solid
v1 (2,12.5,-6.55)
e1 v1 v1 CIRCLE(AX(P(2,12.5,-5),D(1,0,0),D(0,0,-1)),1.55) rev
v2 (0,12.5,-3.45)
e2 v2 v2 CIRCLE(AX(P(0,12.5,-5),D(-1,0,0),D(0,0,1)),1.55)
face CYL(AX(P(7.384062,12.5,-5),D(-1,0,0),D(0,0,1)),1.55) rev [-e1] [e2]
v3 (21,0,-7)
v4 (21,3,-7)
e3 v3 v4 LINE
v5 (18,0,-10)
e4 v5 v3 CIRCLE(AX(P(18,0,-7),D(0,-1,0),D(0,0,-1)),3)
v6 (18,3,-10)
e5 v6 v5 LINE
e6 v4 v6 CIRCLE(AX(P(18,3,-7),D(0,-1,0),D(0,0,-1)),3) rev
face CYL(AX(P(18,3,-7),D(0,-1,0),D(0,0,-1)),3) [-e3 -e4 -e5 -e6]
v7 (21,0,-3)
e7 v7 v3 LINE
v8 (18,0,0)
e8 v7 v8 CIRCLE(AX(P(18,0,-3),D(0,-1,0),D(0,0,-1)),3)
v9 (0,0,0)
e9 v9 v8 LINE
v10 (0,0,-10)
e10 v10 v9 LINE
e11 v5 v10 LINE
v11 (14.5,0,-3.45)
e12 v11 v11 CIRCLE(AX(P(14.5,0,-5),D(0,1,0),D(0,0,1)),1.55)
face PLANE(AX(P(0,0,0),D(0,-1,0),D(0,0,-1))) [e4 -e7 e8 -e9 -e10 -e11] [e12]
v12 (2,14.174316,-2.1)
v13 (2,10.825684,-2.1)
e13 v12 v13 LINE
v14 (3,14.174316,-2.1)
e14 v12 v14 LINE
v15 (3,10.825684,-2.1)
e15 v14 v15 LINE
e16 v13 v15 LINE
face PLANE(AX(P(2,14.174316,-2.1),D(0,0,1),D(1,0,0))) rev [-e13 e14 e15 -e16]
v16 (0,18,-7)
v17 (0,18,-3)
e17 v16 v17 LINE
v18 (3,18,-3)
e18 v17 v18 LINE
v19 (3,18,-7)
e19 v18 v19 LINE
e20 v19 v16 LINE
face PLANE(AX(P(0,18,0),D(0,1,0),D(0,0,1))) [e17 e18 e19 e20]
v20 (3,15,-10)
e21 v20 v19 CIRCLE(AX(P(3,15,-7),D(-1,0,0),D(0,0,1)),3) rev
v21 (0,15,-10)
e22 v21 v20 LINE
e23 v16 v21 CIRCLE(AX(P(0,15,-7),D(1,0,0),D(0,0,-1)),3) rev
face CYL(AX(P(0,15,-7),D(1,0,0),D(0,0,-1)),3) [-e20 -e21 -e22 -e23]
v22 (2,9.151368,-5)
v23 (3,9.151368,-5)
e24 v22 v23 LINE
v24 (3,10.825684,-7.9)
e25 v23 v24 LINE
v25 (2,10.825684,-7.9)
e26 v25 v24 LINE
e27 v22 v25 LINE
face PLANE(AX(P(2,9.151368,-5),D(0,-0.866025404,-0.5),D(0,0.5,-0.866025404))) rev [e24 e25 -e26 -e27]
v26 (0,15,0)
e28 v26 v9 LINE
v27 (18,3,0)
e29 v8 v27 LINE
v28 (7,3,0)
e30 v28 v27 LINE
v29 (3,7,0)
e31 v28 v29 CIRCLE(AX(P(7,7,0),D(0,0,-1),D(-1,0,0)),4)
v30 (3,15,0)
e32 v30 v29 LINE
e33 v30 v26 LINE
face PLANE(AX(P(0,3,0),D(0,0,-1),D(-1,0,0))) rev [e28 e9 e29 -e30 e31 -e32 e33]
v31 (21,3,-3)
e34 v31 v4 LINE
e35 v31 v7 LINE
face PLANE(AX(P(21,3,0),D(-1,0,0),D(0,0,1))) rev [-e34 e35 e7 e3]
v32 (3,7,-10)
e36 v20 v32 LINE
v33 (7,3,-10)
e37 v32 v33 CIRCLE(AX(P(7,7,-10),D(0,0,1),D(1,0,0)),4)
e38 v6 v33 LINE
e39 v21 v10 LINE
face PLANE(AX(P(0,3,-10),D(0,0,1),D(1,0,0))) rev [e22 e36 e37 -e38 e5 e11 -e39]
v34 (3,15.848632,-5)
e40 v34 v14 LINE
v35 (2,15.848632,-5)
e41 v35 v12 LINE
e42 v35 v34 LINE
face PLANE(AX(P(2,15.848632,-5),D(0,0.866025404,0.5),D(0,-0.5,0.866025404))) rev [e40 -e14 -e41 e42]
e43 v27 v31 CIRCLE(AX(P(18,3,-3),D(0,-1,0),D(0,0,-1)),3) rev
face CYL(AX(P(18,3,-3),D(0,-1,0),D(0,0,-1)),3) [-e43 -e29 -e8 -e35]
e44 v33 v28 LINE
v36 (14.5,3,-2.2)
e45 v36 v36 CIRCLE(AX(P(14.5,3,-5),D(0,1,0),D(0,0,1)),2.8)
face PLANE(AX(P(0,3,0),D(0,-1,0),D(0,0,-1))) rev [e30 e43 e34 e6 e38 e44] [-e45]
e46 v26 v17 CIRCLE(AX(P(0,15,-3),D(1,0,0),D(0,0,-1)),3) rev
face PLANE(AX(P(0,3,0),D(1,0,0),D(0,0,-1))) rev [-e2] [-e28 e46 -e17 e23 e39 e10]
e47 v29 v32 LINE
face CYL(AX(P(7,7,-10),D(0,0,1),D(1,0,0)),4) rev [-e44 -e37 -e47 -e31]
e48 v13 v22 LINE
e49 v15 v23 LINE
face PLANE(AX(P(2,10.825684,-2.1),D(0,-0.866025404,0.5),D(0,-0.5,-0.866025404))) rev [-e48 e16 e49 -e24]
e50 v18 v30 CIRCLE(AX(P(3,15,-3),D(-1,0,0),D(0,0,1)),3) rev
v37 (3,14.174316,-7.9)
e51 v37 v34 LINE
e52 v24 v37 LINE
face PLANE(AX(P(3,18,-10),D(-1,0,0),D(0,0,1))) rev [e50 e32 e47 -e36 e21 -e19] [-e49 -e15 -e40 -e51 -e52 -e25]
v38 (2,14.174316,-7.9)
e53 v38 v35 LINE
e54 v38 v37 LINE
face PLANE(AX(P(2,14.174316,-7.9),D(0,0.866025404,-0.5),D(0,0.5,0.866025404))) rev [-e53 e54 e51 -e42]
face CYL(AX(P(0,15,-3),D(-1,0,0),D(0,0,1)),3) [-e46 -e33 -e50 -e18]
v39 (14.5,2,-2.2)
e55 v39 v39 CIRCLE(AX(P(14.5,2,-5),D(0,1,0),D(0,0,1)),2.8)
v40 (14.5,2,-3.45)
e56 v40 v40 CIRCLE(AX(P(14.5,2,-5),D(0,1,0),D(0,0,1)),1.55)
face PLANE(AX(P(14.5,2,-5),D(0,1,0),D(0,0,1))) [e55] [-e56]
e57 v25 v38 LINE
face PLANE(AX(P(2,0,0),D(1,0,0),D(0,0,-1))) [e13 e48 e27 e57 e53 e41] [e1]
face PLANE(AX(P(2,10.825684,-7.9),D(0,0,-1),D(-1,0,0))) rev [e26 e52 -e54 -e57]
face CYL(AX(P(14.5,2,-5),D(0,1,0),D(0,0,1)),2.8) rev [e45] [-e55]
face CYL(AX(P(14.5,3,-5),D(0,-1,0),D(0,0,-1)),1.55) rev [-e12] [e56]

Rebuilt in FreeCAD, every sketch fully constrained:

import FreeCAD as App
import Part
import Sketcher

V = App.Vector
Q = App.Units.Quantity


def edges_at(feature, points):
    """Names of the edges that pass closest to the given points."""
    edges = feature.Shape.Edges
    near = lambda p: min(range(len(edges)), key=lambda i: edges[i].distToShape(Part.Vertex(*p))[0])
    return sorted({f"Edge{near(p) + 1}" for p in points})

doc = App.newDocument("Part")
body = doc.addObject("PartDesign::Body", "Body")

# Sketch on XZ plane
sketch1 = body.newObject("Sketcher::SketchObject", "Sketch")
sketch1.AttachmentSupport = (doc.getObject("XZ_Plane"), [""])
sketch1.MapMode = "FlatFace"
sketch1.addGeometry(Part.LineSegment(V(0, -10, 0), V(0, 0, 0)), False)
sketch1.addGeometry(Part.LineSegment(V(0, 0, 0), V(21, 0, 0)), False)
sketch1.addGeometry(Part.LineSegment(V(21, 0, 0), V(21, -10, 0)), False)
sketch1.addGeometry(Part.LineSegment(V(21, -10, 0), V(0, -10, 0)), False)
sketch1.addGeometry(Part.Circle(V(14.5, -5, 0), V(0, 0, 1), 1.55), False)
sketch1.addConstraint(Sketcher.Constraint("Coincident", 0, 2, 1, 1))
sketch1.addConstraint(Sketcher.Constraint("Coincident", 1, 2, 2, 1))
sketch1.addConstraint(Sketcher.Constraint("Coincident", 2, 2, 3, 1))
sketch1.addConstraint(Sketcher.Constraint("Coincident", 3, 2, 0, 1))
sketch1.addConstraint(Sketcher.Constraint("Vertical", 0))
sketch1.addConstraint(Sketcher.Constraint("Horizontal", 1))
sketch1.addConstraint(Sketcher.Constraint("Vertical", 2))
sketch1.addConstraint(Sketcher.Constraint("Horizontal", 3))
sketch1.addConstraint(Sketcher.Constraint("Coincident", 0, 2, -1, 1))
sketch1.addConstraint(Sketcher.Constraint("Diameter", 4, 3.1))
sketch1.addConstraint(Sketcher.Constraint("DistanceX", 1, 1, 1, 2, 21.0))
sketch1.addConstraint(Sketcher.Constraint("DistanceY", 0, 1, 0, 2, 10.0))
sketch1.addConstraint(Sketcher.Constraint("DistanceY", 4, 3, -1, 1, 5.0))
sketch1.addConstraint(Sketcher.Constraint("DistanceX", -1, 1, 4, 3, 14.5))
pad1 = body.newObject("PartDesign::Pad", "Pad")
pad1.Profile = sketch1
pad1.Length = 3
pad1.Reversed = True

# Sketch on XZ plane
sketch2 = body.newObject("Sketcher::SketchObject", "Sketch001")
sketch2.AttachmentSupport = (doc.getObject("XZ_Plane"), [""])
sketch2.MapMode = "FlatFace"
sketch2.AttachmentOffset = App.Placement(V(0, 0, -3), App.Rotation())
sketch2.addGeometry(Part.LineSegment(V(0, -10, 0), V(0, 0, 0)), False)
sketch2.addGeometry(Part.LineSegment(V(0, 0, 0), V(3, 0, 0)), False)
sketch2.addGeometry(Part.LineSegment(V(3, 0, 0), V(3, -10, 0)), False)
sketch2.addGeometry(Part.LineSegment(V(3, -10, 0), V(0, -10, 0)), False)
sketch2.addConstraint(Sketcher.Constraint("Coincident", 0, 2, 1, 1))
sketch2.addConstraint(Sketcher.Constraint("Coincident", 1, 2, 2, 1))
sketch2.addConstraint(Sketcher.Constraint("Coincident", 2, 2, 3, 1))
sketch2.addConstraint(Sketcher.Constraint("Coincident", 3, 2, 0, 1))
sketch2.addConstraint(Sketcher.Constraint("Vertical", 0))
sketch2.addConstraint(Sketcher.Constraint("Horizontal", 1))
sketch2.addConstraint(Sketcher.Constraint("Vertical", 2))
sketch2.addConstraint(Sketcher.Constraint("Horizontal", 3))
sketch2.addConstraint(Sketcher.Constraint("Coincident", 0, 2, -1, 1))
sketch2.addConstraint(Sketcher.Constraint("DistanceX", 1, 1, 1, 2, 3.0))
sketch2.addConstraint(Sketcher.Constraint("DistanceY", 0, 1, 0, 2, 10.0))
pad2 = body.newObject("PartDesign::Pad", "Pad001")
pad2.Profile = sketch2
pad2.Length = 15
pad2.Reversed = True

# Sketch on YZ plane
sketch3 = body.newObject("Sketcher::SketchObject", "Sketch002")
sketch3.AttachmentSupport = (doc.getObject("YZ_Plane"), [""])
sketch3.MapMode = "FlatFace"
sketch3.addGeometry(Part.Circle(V(12.5, -5, 0), V(0, 0, 1), 1.55), False)
sketch3.addConstraint(Sketcher.Constraint("Diameter", 0, 3.1))
sketch3.addConstraint(Sketcher.Constraint("DistanceY", 0, 3, -1, 1, 5.0))
sketch3.addConstraint(Sketcher.Constraint("DistanceX", -1, 1, 0, 3, 12.5))
pocket1 = body.newObject("PartDesign::Pocket", "Pocket")
pocket1.Profile = sketch3
pocket1.Length = 3
pocket1.Reversed = True

# Sketch on XZ plane
sketch4 = body.newObject("Sketcher::SketchObject", "Sketch003")
sketch4.AttachmentSupport = (doc.getObject("XZ_Plane"), [""])
sketch4.MapMode = "FlatFace"
sketch4.AttachmentOffset = App.Placement(V(0, 0, -3), App.Rotation())
sketch4.addGeometry(Part.Circle(V(14.5, -5, 0), V(0, 0, 1), 2.8), False)
sketch4.addConstraint(Sketcher.Constraint("Diameter", 0, 5.6))
sketch4.addConstraint(Sketcher.Constraint("DistanceY", 0, 3, -1, 1, 5.0))
sketch4.addConstraint(Sketcher.Constraint("DistanceX", -1, 1, 0, 3, 14.5))
pocket2 = body.newObject("PartDesign::Pocket", "Pocket001")
pocket2.Profile = sketch4
pocket2.Length = 1
pocket2.Reversed = True

# Sketch on YZ plane
sketch5 = body.newObject("Sketcher::SketchObject", "Sketch004")
sketch5.AttachmentSupport = (doc.getObject("YZ_Plane"), [""])
sketch5.MapMode = "FlatFace"
sketch5.AttachmentOffset = App.Placement(V(0, 0, 3), App.Rotation())
sketch5.addGeometry(Part.LineSegment(V(14.174316, -7.9, 0), V(15.848632, -5, 0)), False)
sketch5.addGeometry(Part.LineSegment(V(15.848632, -5, 0), V(14.174316, -2.1, 0)), False)
sketch5.addGeometry(Part.LineSegment(V(14.174316, -2.1, 0), V(10.825684, -2.1, 0)), False)
sketch5.addGeometry(Part.LineSegment(V(10.825684, -2.1, 0), V(9.151368, -5, 0)), False)
sketch5.addGeometry(Part.LineSegment(V(9.151368, -5, 0), V(10.825684, -7.9, 0)), False)
sketch5.addGeometry(Part.LineSegment(V(10.825684, -7.9, 0), V(14.174316, -7.9, 0)), False)
sketch5.addConstraint(Sketcher.Constraint("Coincident", 0, 2, 1, 1))
sketch5.addConstraint(Sketcher.Constraint("Coincident", 1, 2, 2, 1))
sketch5.addConstraint(Sketcher.Constraint("Coincident", 2, 2, 3, 1))
sketch5.addConstraint(Sketcher.Constraint("Coincident", 3, 2, 4, 1))
sketch5.addConstraint(Sketcher.Constraint("Coincident", 4, 2, 5, 1))
sketch5.addConstraint(Sketcher.Constraint("Coincident", 5, 2, 0, 1))
sketch5.addConstraint(Sketcher.Constraint("Horizontal", 2))
sketch5.addConstraint(Sketcher.Constraint("Horizontal", 5))
sketch5.addConstraint(Sketcher.Constraint("Parallel", 0, 3))
sketch5.addConstraint(Sketcher.Constraint("Parallel", 1, 4))
sketch5.addConstraint(Sketcher.Constraint("Horizontal", 0, 2, 3, 2))
sketch5.addConstraint(Sketcher.Constraint("Vertical", 2, 2, 4, 2))
sketch5.addConstraint(Sketcher.Constraint("Vertical", 1, 2, 5, 2))
sketch5.addConstraint(Sketcher.Constraint("Angle", 0, Q("60 deg")))
sketch5.addConstraint(Sketcher.Constraint("DistanceY", 0, 2, -1, 1, 5.0))
sketch5.addConstraint(Sketcher.Constraint("DistanceY", 1, 2, -1, 1, 2.1))
sketch5.addConstraint(Sketcher.Constraint("DistanceX", 2, 2, 2, 1, 3.348632))
sketch5.addConstraint(Sketcher.Constraint("DistanceX", -1, 1, 0, 2, 15.848632))
pocket3 = body.newObject("PartDesign::Pocket", "Pocket002")
pocket3.Profile = sketch5
pocket3.Length = 1
doc.recompute()

fillet = body.newObject("PartDesign::Fillet", "Fillet")
fillet.Base = (pocket3, edges_at(pocket3, [
    (1.5, 18, 0),
    (1.5, 18, -10),
    (21, 1.5, -10),
    (21, 1.5, 0),
]))
fillet.Radius = 3
doc.recompute()

fillet2 = body.newObject("PartDesign::Fillet", "Fillet001")
fillet2.Base = (fillet, edges_at(fillet, [(3, 3, -5)]))
fillet2.Radius = 4

doc.recompute()
